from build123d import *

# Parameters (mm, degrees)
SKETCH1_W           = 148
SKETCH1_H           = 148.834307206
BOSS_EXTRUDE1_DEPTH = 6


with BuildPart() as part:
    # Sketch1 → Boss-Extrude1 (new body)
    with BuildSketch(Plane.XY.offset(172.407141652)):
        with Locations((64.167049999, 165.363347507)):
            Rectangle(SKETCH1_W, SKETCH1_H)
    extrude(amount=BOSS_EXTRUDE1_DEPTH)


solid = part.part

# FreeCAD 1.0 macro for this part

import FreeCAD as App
import Part
import Sketcher
from FreeCAD import Vector
Q = App.Units.Quantity


def add_polygon(sketch, points):
    """Adds a closed chain of lines whose ends are joined by coincident constraints."""
    first, n = sketch.GeometryCount, len(points)
    for a, b in zip(points, points[1:] + points[:1]):
        sketch.addGeometry(Part.LineSegment(App.Vector(*a, 0), App.Vector(*b, 0)), False)
    for i in range(n):
        sketch.addConstraint(Sketcher.Constraint("Coincident", first + i, 2, first + (i + 1) % n, 1))

doc = App.newDocument("Part")
body = doc.addObject("PartDesign::Body", "Body")

sketch1 = body.newObject("Sketcher::SketchObject", "Sketch")
sketch1.AttachmentSupport = (doc.getObject("XY_Plane"), [""])
sketch1.MapMode = "FlatFace"
sketch1.AttachmentOffset = App.Placement(Vector(0, 0, 172.407142), App.Rotation())
add_polygon(sketch1, [(-10, 240), (-10, 91), (138, 91), (138, 240)])
sketch1.addConstraint(Sketcher.Constraint("Vertical", 0))
sketch1.addConstraint(Sketcher.Constraint("Horizontal", 1))
sketch1.addConstraint(Sketcher.Constraint("Vertical", 2))
sketch1.addConstraint(Sketcher.Constraint("Horizontal", 3))
sketch1.addConstraint(Sketcher.Constraint("DistanceX", 1, 1, 1, 2, Q("148 mm")))
sketch1.addConstraint(Sketcher.Constraint("DistanceY", -1, 1, 2, 2, Q("239.780501 mm")))
sketch1.addConstraint(Sketcher.Constraint("DistanceY", 0, 2, 0, 1, Q("148.834307 mm")))
sketch1.addConstraint(Sketcher.Constraint("DistanceX", 0, 2, -1, 1, Q("9.83295 mm")))
pad1 = body.newObject("PartDesign::Pad", "Pad")
pad1.Profile = sketch1
pad1.Length = 6

doc.recompute()
